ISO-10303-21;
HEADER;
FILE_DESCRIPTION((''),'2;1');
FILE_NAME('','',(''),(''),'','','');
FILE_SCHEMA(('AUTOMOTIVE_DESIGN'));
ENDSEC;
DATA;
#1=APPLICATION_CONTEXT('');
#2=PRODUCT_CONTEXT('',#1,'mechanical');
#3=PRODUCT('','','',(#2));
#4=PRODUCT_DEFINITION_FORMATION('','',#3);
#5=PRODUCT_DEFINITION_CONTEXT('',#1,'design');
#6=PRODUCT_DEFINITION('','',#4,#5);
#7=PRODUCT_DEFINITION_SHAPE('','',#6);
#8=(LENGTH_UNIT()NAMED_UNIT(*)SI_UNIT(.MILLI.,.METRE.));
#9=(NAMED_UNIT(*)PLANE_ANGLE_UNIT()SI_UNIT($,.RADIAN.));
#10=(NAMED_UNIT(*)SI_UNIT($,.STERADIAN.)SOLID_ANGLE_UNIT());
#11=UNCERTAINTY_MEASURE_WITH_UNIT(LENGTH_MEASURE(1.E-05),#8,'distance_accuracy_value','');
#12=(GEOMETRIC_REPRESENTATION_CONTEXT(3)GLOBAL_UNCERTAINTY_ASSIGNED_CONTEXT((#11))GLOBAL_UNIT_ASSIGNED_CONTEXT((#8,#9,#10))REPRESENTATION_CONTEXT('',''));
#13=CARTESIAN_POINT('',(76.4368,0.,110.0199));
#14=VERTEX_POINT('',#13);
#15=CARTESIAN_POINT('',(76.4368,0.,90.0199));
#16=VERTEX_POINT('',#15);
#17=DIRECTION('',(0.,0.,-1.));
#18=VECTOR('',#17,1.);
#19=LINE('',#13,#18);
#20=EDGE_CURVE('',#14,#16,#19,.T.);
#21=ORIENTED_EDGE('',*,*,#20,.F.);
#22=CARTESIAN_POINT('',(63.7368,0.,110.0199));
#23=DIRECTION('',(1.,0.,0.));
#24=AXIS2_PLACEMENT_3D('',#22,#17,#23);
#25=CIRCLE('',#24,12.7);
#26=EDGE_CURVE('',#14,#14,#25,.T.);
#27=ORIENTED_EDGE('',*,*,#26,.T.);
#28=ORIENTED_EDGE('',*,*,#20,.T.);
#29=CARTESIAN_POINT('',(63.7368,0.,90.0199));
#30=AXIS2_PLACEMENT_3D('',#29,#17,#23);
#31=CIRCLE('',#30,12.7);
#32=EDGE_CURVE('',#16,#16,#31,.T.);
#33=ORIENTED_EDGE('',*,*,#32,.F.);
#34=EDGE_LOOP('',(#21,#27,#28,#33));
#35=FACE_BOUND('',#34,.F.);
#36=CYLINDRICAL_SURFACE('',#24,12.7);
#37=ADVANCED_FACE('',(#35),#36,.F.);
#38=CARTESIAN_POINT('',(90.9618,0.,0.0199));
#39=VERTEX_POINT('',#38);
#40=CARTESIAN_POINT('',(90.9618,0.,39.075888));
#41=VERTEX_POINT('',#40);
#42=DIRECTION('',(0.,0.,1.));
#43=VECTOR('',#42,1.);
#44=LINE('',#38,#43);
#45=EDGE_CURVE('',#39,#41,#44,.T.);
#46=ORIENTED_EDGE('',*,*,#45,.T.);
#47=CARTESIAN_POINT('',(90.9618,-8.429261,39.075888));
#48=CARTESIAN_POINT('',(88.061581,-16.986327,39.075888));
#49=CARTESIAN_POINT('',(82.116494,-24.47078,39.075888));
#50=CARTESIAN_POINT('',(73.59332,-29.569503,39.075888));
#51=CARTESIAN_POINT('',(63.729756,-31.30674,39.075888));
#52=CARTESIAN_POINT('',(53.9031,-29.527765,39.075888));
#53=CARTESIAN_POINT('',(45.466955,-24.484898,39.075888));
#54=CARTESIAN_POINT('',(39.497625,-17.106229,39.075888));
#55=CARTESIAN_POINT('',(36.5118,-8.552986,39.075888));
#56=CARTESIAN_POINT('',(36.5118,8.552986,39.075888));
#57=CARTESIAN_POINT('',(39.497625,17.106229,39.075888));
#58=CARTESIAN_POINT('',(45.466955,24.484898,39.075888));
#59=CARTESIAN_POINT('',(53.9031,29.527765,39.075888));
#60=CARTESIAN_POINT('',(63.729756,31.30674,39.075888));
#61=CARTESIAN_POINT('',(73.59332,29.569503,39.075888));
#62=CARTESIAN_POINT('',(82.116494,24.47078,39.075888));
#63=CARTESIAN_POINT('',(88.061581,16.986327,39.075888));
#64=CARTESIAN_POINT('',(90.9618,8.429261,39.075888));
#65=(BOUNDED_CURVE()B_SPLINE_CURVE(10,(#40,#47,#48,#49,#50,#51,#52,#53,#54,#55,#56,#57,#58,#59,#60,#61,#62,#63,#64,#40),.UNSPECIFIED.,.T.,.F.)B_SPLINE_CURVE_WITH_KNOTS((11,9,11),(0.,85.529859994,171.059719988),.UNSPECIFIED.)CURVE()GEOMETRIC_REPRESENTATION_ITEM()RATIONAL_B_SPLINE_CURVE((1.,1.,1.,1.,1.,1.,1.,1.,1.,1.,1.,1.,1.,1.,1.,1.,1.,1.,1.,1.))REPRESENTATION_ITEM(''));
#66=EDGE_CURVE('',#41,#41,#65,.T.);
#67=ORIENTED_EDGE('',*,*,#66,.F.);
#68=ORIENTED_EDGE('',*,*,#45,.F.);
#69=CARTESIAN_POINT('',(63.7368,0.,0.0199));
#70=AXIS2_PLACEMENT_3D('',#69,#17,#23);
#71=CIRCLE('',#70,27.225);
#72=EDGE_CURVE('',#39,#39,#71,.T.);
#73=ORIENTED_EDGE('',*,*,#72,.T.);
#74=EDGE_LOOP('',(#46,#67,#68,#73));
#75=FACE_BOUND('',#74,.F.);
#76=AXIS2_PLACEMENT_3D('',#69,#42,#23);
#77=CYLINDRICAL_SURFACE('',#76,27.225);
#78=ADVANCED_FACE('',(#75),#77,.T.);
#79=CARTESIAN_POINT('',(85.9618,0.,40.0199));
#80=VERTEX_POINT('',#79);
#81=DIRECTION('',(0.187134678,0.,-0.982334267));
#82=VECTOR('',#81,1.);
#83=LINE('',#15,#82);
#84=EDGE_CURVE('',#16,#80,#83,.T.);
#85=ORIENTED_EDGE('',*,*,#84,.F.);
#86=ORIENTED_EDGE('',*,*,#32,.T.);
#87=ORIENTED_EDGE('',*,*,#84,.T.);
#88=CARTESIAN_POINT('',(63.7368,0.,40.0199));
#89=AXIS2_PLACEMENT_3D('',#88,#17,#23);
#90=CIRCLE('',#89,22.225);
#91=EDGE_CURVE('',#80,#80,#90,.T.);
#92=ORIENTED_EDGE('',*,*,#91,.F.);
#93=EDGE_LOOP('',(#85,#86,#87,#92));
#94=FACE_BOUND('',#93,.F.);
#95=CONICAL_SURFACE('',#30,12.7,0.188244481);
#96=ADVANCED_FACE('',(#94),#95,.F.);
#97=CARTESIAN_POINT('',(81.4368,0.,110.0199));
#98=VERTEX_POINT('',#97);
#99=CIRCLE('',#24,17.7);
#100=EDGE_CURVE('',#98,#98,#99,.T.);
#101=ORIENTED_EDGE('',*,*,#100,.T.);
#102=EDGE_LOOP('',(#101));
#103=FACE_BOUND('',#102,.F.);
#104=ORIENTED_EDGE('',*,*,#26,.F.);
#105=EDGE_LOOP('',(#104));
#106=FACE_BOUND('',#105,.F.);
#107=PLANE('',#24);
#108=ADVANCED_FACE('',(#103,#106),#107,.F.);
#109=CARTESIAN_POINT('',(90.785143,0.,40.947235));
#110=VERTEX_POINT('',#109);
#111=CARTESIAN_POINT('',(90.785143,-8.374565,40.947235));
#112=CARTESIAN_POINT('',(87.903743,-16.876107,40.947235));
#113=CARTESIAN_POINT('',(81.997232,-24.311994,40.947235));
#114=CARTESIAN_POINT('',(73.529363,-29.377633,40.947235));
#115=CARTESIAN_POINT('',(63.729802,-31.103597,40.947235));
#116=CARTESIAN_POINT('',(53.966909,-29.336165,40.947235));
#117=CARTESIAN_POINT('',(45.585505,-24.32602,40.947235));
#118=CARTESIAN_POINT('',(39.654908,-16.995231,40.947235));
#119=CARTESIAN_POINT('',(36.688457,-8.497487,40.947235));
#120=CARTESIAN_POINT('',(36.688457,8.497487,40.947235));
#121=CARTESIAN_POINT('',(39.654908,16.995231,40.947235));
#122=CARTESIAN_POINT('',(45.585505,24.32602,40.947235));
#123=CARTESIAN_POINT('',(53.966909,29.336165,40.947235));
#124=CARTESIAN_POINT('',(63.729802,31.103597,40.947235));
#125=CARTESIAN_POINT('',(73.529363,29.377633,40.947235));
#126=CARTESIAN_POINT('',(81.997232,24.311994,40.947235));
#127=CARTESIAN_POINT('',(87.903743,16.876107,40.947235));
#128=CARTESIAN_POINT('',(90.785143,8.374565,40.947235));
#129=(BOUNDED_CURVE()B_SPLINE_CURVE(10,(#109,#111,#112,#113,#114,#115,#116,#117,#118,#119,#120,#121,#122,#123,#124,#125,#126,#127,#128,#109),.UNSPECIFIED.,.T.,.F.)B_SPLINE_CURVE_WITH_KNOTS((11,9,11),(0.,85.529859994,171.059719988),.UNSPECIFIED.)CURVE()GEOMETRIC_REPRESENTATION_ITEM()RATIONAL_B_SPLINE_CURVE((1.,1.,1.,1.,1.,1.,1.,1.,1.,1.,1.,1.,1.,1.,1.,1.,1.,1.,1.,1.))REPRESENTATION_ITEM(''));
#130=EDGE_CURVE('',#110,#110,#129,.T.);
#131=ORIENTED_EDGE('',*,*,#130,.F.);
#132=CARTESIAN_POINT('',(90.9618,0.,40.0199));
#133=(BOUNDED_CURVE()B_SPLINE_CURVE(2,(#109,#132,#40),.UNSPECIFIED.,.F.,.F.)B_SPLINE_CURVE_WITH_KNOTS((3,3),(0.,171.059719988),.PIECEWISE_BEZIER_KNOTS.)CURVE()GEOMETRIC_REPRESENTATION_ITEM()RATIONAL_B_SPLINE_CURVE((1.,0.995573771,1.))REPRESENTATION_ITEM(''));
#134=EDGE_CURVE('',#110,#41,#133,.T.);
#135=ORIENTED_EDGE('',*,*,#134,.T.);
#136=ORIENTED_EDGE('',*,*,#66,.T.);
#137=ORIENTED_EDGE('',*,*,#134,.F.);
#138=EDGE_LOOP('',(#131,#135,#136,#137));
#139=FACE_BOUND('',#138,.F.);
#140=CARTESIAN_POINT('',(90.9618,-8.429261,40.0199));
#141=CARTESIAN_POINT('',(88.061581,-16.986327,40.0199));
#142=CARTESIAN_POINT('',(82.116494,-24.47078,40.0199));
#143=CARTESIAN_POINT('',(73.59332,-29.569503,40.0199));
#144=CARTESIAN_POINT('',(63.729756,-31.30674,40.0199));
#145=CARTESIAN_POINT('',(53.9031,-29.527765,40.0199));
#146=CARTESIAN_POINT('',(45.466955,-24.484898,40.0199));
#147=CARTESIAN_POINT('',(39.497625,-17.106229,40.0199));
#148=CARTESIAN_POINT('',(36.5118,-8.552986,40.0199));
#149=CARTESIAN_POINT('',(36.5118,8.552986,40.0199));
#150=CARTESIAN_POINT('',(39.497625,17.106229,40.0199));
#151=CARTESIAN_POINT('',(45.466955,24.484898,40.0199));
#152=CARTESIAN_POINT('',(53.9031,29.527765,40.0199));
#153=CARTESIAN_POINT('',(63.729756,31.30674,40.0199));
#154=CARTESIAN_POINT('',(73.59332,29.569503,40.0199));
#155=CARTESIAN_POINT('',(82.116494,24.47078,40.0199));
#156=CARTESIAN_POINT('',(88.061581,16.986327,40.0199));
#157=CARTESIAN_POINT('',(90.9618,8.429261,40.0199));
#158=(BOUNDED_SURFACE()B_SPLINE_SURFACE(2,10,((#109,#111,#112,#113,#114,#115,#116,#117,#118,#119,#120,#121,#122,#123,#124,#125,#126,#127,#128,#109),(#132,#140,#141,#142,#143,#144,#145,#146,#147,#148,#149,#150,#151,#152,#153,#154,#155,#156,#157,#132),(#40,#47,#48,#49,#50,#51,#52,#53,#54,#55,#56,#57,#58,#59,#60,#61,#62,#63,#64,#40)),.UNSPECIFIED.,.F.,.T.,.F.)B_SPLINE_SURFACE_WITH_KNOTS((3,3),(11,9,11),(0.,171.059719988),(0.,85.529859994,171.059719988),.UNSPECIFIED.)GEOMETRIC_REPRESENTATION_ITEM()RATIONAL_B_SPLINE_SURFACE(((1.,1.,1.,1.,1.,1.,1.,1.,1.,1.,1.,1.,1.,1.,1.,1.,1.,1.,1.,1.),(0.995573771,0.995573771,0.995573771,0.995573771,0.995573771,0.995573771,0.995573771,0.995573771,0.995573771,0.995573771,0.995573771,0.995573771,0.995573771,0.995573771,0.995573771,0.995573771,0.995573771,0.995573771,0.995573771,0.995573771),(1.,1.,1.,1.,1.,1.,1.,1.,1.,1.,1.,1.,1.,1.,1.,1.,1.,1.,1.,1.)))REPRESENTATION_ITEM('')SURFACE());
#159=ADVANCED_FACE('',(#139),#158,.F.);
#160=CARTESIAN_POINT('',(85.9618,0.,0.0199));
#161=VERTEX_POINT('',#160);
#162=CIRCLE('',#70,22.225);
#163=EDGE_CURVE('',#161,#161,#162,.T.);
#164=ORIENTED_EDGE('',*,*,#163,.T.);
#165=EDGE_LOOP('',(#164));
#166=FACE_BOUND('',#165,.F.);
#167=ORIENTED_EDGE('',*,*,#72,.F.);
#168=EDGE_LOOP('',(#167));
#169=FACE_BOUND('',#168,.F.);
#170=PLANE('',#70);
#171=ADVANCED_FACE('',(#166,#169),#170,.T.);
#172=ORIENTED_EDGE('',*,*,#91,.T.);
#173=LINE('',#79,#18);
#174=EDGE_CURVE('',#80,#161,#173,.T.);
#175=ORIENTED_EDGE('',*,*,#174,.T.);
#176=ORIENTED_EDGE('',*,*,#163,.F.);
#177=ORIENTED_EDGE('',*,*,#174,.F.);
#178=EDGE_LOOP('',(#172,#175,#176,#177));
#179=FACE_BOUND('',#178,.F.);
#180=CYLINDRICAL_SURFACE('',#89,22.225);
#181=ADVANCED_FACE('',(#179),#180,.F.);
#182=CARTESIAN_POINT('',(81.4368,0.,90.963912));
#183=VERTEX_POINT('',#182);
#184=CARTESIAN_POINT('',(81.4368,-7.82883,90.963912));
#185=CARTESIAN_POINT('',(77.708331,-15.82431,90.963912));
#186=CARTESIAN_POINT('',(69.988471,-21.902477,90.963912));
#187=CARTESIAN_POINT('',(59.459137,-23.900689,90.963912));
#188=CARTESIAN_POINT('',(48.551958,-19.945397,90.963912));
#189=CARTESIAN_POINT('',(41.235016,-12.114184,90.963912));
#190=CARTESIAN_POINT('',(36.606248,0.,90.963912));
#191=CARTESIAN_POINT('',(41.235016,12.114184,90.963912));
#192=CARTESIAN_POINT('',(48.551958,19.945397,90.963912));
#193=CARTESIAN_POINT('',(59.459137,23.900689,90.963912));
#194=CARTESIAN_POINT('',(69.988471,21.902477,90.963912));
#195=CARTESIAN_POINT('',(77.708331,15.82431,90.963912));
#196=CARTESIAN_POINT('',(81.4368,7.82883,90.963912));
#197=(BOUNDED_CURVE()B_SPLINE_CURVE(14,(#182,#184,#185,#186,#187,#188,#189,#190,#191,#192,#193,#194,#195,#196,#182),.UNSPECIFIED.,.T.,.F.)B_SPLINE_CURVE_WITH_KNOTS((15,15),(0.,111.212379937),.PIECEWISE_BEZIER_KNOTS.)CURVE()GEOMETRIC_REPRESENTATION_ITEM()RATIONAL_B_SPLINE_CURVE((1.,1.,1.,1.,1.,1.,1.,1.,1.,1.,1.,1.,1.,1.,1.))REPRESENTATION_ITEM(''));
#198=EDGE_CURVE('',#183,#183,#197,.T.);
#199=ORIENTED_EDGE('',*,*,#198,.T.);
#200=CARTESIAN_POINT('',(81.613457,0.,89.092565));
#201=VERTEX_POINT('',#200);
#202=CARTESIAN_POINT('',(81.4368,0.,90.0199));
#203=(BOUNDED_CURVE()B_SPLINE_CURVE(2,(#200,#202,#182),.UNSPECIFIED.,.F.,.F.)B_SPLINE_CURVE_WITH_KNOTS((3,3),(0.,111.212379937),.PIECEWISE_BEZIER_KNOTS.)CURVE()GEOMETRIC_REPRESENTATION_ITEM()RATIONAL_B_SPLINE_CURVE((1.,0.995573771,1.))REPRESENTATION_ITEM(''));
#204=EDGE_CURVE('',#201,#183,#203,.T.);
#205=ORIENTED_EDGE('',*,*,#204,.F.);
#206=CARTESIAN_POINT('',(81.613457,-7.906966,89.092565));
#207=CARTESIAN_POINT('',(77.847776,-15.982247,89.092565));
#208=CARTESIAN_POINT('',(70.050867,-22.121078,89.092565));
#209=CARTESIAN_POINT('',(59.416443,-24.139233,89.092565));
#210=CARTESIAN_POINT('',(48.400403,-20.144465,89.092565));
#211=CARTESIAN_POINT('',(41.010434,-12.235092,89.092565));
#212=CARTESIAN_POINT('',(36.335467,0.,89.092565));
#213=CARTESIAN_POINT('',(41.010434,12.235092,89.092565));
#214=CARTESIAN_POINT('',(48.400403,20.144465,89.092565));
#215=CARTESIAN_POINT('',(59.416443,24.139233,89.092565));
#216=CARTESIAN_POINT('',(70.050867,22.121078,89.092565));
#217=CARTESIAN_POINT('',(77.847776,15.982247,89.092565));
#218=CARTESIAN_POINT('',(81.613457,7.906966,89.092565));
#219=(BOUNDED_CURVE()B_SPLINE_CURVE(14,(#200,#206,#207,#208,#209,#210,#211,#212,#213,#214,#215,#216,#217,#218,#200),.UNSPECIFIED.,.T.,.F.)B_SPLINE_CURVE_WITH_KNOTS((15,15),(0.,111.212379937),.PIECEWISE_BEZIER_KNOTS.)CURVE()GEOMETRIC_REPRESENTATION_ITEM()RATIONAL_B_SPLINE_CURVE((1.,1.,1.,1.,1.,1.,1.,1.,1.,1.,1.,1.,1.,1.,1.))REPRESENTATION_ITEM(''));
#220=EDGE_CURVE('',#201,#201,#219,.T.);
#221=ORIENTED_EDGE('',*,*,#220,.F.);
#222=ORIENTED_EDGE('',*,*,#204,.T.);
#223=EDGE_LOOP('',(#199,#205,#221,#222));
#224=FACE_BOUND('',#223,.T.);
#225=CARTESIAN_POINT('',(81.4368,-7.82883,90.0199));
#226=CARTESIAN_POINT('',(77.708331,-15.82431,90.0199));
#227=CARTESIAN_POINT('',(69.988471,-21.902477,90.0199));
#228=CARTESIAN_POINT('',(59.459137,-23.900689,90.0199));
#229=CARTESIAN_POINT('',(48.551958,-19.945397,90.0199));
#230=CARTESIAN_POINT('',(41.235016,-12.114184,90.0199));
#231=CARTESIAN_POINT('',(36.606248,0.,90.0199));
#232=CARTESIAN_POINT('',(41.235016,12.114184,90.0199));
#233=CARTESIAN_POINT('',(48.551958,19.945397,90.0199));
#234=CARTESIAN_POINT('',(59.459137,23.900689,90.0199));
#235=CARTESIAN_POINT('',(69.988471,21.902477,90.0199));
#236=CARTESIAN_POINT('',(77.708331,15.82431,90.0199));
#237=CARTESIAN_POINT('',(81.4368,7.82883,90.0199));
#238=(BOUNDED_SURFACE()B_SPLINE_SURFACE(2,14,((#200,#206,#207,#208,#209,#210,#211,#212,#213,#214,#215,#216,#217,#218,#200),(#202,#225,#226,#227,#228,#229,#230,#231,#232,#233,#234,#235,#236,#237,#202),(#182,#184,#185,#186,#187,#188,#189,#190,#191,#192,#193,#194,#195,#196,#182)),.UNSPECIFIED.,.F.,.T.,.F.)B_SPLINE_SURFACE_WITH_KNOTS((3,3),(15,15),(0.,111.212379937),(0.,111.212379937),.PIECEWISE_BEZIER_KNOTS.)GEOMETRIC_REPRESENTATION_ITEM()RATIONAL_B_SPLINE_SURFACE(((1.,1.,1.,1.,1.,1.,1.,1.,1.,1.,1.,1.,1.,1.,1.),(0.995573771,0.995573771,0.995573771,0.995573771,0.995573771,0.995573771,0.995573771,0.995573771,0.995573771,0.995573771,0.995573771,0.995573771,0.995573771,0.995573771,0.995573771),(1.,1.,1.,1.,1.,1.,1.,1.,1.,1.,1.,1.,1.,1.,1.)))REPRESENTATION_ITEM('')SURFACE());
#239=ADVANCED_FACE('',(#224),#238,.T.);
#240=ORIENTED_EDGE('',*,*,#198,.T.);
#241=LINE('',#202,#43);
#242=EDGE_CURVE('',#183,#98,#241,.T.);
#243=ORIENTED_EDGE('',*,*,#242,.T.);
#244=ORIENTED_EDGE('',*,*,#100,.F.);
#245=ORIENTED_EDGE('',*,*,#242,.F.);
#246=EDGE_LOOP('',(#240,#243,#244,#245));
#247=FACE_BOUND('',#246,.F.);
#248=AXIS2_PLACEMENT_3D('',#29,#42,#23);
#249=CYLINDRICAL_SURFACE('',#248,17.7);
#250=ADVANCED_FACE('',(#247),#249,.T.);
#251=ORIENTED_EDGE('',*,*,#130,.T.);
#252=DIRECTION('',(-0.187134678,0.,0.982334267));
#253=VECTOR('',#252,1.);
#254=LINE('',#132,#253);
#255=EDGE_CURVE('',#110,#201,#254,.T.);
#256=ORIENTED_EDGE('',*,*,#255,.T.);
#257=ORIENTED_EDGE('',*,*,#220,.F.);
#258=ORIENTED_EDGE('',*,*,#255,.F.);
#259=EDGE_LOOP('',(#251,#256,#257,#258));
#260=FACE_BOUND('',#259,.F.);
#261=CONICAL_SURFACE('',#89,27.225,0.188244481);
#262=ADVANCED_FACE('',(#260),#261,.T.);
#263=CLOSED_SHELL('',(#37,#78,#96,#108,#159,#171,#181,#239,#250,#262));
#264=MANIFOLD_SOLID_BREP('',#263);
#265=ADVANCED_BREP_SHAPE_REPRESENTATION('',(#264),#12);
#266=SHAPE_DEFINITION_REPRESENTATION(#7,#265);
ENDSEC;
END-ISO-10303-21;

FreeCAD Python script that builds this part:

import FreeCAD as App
import Part
import Sketcher


def edges_at(feature, points):
    """Names of the edges that pass closest to the given points."""
    edges = feature.Shape.Edges
    near = lambda p: min(range(len(edges)), key=lambda i: edges[i].distToShape(Part.Vertex(*p))[0])
    return sorted({f"Edge{near(p) + 1}" for p in points})

doc = App.newDocument("Part")
body = doc.addObject("PartDesign::Body", "Body")

sketch1 = body.newObject("Sketcher::SketchObject", "Sketch")
sketch1.AttachmentSupport = (doc.getObject("XZ_Plane"), [""])
sketch1.MapMode = "FlatFace"
sketch1.addGeometry(Part.LineSegment(App.Vector(91, 40, 0), App.Vector(91, 0, 0)), False)
sketch1.addGeometry(Part.LineSegment(App.Vector(91, 0, 0), App.Vector(86, 0, 0)), False)
sketch1.addGeometry(Part.LineSegment(App.Vector(86, 0, 0), App.Vector(86, 40, 0)), False)
sketch1.addGeometry(Part.LineSegment(App.Vector(86, 40, 0), App.Vector(76, 90, 0)), False)
sketch1.addGeometry(Part.LineSegment(App.Vector(76, 90, 0), App.Vector(76, 110, 0)), False)
sketch1.addGeometry(Part.LineSegment(App.Vector(76, 110, 0), App.Vector(81, 110, 0)), False)
sketch1.addGeometry(Part.LineSegment(App.Vector(81, 110, 0), App.Vector(81, 90, 0)), False)
sketch1.addGeometry(Part.LineSegment(App.Vector(81, 90, 0), App.Vector(91, 40, 0)), False)
sketch1.addGeometry(Part.LineSegment(App.Vector(64, 110, 0), App.Vector(64, 0, 0)), True)
sketch1.addConstraint(Sketcher.Constraint("Coincident", 0, 2, 1, 1))
sketch1.addConstraint(Sketcher.Constraint("Coincident", 1, 2, 2, 1))
sketch1.addConstraint(Sketcher.Constraint("Coincident", 2, 2, 3, 1))
sketch1.addConstraint(Sketcher.Constraint("Coincident", 3, 2, 4, 1))
sketch1.addConstraint(Sketcher.Constraint("Coincident", 4, 2, 5, 1))
sketch1.addConstraint(Sketcher.Constraint("Coincident", 5, 2, 6, 1))
sketch1.addConstraint(Sketcher.Constraint("Coincident", 6, 2, 7, 1))
sketch1.addConstraint(Sketcher.Constraint("Coincident", 7, 2, 0, 1))
sketch1.addConstraint(Sketcher.Constraint("Vertical", 0))
sketch1.addConstraint(Sketcher.Constraint("Horizontal", 1))
sketch1.addConstraint(Sketcher.Constraint("Vertical", 2))
sketch1.addConstraint(Sketcher.Constraint("Vertical", 4))
sketch1.addConstraint(Sketcher.Constraint("Horizontal", 5))
sketch1.addConstraint(Sketcher.Constraint("Vertical", 6))
sketch1.addConstraint(Sketcher.Constraint("Vertical", 8))
sketch1.addConstraint(Sketcher.Constraint("Parallel", 3, 7))
sketch1.addConstraint(Sketcher.Constraint("Horizontal", 3, 2, 6, 2))
sketch1.addConstraint(Sketcher.Constraint("Horizontal", 2, 2, 7, 2))
sketch1.addConstraint(Sketcher.Constraint("Horizontal", 5, 2, 8, 1))
sketch1.addConstraint(Sketcher.Constraint("Horizontal", 1, 2, 8, 2))
sketch1.addConstraint(Sketcher.Constraint("DistanceX", 1, 2, 1, 1, 5.0))
sketch1.addConstraint(Sketcher.Constraint("DistanceY", 0, 2, 0, 1, 40.0))
sketch1.addConstraint(Sketcher.Constraint("DistanceY", 4, 1, 4, 2, 20.0))
sketch1.addConstraint(Sketcher.Constraint("DistanceY", 2, 2, 3, 2, 50.0))
sketch1.addConstraint(Sketcher.Constraint("DistanceX", 8, 1, 4, 2, 12.7))
sketch1.addConstraint(Sketcher.Constraint("DistanceX", 8, 1, 2, 2, 22.225))
sketch1.addConstraint(Sketcher.Constraint("DistanceY", -1, 1, 0, 2, 0.02))
sketch1.addConstraint(Sketcher.Constraint("DistanceX", -1, 1, 0, 2, 90.9618))
revolution = body.newObject("PartDesign::Revolution", "Revolution")
revolution.Profile = sketch1
revolution.ReferenceAxis = (sketch1, ["Axis0"])
revolution.Angle = 360
doc.recompute()

fillet = body.newObject("PartDesign::Fillet", "Fillet")
fillet.Base = (revolution, edges_at(revolution, [(47.235, -6.401, 90.02)]))
fillet.Radius = 10
doc.recompute()

fillet2 = body.newObject("PartDesign::Fillet", "Fillet001")
fillet2.Base = (fillet, edges_at(fillet, [(38.354, -9.845, 40.02)]))
fillet2.Radius = 10

doc.recompute()
